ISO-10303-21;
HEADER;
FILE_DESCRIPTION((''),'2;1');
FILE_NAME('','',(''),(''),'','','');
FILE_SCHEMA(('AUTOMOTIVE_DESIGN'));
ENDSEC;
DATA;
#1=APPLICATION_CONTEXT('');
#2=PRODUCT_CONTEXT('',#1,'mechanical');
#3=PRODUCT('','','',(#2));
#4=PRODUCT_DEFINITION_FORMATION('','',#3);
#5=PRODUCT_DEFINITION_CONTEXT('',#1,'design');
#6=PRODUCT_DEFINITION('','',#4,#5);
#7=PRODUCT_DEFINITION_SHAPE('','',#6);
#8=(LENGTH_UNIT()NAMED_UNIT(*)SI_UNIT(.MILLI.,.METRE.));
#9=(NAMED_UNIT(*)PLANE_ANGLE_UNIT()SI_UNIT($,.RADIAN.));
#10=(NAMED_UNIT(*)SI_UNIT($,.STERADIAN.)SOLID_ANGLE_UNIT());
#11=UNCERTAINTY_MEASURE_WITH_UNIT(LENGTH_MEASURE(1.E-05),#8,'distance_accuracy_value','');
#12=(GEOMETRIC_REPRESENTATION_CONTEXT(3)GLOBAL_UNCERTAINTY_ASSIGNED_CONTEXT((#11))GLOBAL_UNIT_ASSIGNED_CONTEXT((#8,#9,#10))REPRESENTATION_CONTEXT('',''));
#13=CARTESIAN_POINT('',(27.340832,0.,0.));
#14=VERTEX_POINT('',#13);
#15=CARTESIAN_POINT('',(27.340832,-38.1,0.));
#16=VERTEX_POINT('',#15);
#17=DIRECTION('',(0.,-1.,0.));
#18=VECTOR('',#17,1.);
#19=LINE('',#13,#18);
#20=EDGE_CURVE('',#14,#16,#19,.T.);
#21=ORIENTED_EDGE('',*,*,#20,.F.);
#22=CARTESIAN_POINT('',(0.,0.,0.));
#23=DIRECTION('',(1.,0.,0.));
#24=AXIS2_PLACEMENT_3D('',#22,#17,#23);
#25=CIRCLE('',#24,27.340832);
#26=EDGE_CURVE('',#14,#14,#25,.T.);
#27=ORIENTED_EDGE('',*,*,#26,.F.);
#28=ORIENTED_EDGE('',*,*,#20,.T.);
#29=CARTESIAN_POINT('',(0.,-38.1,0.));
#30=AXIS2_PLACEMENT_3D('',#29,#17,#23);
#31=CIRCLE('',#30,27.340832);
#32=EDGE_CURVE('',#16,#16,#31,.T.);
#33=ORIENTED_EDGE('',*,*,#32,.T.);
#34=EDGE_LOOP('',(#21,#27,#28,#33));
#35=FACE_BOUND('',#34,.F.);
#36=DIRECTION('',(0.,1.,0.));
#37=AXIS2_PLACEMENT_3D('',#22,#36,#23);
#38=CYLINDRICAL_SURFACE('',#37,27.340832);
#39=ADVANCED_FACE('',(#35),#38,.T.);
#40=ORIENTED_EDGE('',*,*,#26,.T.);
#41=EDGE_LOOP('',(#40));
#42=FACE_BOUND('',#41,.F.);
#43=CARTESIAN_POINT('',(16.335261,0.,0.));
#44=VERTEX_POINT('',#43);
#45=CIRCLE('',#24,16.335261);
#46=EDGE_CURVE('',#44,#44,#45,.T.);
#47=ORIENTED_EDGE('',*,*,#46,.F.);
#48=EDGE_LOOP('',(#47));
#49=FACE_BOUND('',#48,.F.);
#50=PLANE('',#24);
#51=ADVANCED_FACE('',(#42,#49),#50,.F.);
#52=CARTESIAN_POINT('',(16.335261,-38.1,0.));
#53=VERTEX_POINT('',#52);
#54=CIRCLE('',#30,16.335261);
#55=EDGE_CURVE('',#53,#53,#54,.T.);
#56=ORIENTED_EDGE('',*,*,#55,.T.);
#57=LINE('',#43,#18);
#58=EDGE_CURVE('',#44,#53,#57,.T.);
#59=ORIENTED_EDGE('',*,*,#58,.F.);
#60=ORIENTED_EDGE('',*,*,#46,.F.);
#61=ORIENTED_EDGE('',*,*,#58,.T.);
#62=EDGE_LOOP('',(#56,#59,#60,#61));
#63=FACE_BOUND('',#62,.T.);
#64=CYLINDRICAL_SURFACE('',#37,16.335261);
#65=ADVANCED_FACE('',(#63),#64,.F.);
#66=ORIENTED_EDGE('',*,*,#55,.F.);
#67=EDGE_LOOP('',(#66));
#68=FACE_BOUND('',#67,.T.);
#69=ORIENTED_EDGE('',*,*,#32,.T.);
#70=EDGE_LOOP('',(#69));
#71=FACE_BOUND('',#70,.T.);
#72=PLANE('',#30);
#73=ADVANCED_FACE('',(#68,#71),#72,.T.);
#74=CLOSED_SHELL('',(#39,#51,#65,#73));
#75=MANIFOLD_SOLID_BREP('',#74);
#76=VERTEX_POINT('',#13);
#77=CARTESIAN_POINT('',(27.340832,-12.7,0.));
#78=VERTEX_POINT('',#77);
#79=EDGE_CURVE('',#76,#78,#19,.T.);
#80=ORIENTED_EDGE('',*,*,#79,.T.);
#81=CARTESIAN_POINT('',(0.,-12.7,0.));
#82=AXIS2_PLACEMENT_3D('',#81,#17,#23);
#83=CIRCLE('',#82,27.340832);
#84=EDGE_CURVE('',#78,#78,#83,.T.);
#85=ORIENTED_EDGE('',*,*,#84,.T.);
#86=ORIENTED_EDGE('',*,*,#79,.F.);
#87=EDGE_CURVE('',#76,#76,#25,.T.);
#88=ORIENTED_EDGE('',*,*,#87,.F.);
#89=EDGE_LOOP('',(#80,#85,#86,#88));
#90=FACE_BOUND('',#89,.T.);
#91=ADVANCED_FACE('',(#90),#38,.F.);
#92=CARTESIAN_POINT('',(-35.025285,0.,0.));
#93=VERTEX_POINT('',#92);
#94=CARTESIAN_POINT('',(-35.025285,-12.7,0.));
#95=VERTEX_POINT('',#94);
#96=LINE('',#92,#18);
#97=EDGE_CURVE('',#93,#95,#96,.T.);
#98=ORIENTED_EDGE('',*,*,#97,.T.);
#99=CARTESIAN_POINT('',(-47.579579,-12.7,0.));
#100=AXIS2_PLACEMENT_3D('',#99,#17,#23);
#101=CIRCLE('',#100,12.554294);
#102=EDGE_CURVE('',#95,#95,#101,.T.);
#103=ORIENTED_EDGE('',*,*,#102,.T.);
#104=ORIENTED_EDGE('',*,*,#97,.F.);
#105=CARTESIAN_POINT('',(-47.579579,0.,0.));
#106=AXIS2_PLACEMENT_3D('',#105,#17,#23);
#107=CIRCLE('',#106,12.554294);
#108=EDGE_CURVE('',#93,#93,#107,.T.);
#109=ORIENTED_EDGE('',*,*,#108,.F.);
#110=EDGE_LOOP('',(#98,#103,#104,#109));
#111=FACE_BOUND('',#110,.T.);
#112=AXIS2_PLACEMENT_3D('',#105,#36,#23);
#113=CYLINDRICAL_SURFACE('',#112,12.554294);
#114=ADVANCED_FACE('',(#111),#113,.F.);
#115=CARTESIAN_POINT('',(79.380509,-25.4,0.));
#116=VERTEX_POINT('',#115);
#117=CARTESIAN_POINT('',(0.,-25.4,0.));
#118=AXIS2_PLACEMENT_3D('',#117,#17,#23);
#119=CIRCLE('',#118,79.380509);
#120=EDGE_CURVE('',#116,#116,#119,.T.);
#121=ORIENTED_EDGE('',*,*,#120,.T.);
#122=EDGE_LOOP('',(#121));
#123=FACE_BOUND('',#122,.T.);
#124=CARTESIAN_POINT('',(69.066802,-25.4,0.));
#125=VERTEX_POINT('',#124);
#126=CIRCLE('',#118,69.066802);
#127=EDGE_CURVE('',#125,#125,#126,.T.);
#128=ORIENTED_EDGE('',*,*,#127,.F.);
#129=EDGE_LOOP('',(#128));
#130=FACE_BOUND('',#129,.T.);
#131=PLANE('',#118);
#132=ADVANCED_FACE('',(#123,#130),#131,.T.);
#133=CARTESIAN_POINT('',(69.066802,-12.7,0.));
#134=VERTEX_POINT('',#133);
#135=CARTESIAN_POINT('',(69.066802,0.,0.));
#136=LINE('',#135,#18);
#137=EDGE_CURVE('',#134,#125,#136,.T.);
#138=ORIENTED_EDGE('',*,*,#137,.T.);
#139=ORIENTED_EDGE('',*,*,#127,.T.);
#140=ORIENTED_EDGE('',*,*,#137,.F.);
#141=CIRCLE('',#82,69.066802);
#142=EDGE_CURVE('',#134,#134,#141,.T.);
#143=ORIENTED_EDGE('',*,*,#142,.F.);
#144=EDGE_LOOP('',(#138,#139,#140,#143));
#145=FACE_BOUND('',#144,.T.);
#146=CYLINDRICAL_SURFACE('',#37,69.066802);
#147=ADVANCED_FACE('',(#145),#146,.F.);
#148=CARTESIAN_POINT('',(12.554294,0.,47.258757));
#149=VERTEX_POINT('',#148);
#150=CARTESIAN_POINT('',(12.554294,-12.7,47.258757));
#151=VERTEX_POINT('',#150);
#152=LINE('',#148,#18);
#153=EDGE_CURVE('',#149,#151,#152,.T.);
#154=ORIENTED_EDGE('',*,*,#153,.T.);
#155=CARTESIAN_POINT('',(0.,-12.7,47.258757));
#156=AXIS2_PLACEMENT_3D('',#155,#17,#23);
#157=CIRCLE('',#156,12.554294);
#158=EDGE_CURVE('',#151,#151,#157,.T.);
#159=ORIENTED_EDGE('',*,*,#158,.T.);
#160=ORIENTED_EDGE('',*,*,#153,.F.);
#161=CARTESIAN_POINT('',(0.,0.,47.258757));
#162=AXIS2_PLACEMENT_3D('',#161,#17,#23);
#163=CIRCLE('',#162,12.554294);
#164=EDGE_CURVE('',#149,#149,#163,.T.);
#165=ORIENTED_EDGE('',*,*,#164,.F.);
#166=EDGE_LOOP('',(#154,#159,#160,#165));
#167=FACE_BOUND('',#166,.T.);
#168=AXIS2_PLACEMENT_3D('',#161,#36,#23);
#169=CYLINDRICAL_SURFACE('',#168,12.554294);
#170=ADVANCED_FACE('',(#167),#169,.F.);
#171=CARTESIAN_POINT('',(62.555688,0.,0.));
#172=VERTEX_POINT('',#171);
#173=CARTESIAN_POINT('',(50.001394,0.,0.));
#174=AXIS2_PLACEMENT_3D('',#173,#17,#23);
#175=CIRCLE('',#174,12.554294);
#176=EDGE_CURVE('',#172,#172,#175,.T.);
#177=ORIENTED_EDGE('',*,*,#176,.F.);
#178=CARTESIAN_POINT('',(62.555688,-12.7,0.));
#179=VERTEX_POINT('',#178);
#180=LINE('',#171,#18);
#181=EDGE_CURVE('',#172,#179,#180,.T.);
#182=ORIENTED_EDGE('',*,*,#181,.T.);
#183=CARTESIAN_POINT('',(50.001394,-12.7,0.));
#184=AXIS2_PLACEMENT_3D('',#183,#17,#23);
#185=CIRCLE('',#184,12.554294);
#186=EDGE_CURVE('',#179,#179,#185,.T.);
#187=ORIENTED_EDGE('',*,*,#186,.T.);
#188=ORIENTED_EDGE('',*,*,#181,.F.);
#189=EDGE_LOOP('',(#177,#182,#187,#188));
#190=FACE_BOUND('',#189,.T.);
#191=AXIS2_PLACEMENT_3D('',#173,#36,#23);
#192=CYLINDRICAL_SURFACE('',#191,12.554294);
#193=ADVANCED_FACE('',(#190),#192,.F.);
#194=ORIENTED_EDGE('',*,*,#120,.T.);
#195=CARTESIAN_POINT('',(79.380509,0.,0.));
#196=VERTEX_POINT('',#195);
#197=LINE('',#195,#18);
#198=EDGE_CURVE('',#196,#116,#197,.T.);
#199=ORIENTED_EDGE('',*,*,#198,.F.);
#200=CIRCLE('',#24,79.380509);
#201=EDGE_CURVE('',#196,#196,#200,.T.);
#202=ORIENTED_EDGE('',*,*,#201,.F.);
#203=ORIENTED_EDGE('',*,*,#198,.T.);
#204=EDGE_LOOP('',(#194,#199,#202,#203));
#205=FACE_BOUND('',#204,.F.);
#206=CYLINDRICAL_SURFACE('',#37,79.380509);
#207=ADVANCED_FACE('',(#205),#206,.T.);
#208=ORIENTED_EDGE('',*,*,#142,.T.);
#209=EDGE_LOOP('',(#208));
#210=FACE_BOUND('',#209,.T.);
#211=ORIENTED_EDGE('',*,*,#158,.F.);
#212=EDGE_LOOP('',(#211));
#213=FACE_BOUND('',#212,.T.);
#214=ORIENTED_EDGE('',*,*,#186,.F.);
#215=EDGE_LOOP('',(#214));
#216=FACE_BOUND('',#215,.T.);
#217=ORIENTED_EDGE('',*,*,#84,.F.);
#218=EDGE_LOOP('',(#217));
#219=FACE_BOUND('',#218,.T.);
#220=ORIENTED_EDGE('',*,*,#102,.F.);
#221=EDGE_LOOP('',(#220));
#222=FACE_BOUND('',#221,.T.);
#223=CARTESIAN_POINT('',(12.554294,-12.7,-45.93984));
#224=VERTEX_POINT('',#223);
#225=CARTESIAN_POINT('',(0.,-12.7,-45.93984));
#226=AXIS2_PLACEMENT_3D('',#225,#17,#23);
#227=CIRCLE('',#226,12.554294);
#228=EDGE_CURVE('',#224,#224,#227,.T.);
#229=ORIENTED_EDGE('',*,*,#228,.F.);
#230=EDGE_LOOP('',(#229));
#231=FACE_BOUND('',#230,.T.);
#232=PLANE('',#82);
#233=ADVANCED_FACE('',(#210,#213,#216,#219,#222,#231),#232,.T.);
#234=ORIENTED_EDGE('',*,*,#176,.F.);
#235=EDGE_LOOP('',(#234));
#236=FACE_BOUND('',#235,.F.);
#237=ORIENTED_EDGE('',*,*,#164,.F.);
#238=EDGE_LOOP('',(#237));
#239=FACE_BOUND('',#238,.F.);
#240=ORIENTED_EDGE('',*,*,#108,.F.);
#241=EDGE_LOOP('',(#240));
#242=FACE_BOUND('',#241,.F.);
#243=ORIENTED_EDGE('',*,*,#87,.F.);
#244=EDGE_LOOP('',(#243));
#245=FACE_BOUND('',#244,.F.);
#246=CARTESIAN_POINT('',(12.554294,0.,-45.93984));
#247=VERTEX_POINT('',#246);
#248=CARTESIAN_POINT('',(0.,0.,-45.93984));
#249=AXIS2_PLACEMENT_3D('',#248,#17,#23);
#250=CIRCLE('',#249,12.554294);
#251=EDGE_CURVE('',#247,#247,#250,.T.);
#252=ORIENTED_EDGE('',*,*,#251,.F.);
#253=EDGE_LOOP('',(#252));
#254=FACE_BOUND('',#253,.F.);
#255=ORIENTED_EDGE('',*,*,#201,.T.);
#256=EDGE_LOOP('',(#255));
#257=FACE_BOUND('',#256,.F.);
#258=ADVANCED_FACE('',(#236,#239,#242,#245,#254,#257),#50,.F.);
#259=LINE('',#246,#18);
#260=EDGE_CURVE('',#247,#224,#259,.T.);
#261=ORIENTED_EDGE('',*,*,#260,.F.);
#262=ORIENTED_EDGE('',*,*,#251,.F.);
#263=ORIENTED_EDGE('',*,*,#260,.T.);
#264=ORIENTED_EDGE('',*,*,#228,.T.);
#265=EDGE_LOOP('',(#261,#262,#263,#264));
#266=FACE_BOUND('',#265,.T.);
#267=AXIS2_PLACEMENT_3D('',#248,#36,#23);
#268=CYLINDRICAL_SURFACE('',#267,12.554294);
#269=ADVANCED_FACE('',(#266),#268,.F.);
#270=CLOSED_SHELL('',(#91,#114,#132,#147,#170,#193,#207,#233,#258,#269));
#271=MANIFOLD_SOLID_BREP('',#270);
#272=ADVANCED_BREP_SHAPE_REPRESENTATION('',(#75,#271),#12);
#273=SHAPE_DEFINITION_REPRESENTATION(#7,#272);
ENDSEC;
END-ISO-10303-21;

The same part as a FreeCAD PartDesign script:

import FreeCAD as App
import Part
import Sketcher

V = App.Vector
Q = App.Units.Quantity

doc = App.newDocument("Part")
body = doc.addObject("PartDesign::Body", "Body")

# Sketch on XZ plane
sketch1 = body.newObject("Sketcher::SketchObject", "Sketch")
sketch1.AttachmentSupport = (doc.getObject("XZ_Plane"), [""])
sketch1.MapMode = "FlatFace"
sketch1.addGeometry([
    Part.Circle(V(0, 0, 0), V(0, 0, 1), 27),
    Part.Circle(V(0, 0, 0), V(0, 0, 1), 16),
], False)
sketch1.addConstraint([
    Sketcher.Constraint("Coincident", 0, 3, -1, 1),
    Sketcher.Constraint("Coincident", 1, 3, -1, 1),
    Sketcher.Constraint("Diameter", 1, 32.670522),
    Sketcher.Constraint("Diameter", 0, 54.681664),
])
pad1 = body.newObject("PartDesign::Pad", "Pad")
pad1.Profile = sketch1
pad1.Length = Q("1.5 in")
body2 = doc.addObject("PartDesign::Body", "Body001")

# Sketch on XZ plane
sketch2 = body2.newObject("Sketcher::SketchObject", "Sketch001")
sketch2.AttachmentSupport = (doc.getObject("XZ_Plane001"), [""])
sketch2.MapMode = "FlatFace"
sketch2.addGeometry([
    Part.Circle(V(0, 0, 0), V(0, 0, 1), 69),  # 0
    Part.Circle(V(0, -46, 0), V(0, 0, 1), 13),  # 1
    Part.Circle(V(-48, 0, 0), V(0, 0, 1), 13),  # 2
    Part.Circle(V(0, 0, 0), V(0, 0, 1), 27),  # 3
    Part.Circle(V(50, 0, 0), V(0, 0, 1), 13),  # 4
    Part.Circle(V(0, 47, 0), V(0, 0, 1), 13),  # 5
], False)
sketch2.addConstraint([
    Sketcher.Constraint("Coincident", 0, 3, -1, 1),
    Sketcher.Constraint("Coincident", 3, 3, -1, 1),
    Sketcher.Constraint("Equal", 1, 2),
    Sketcher.Constraint("Equal", 2, 4),
    Sketcher.Constraint("Equal", 4, 5),
    Sketcher.Constraint("PointOnObject", 1, 3, -2),
    Sketcher.Constraint("PointOnObject", 2, 3, -1),
    Sketcher.Constraint("PointOnObject", 4, 3, -1),
    Sketcher.Constraint("PointOnObject", 5, 3, -2),
    Sketcher.Constraint("Diameter", 1, 25.108588),
    Sketcher.Constraint("Diameter", 0, 138.133604),
    Sketcher.Constraint("Diameter", 3, 54.681664),
    Sketcher.Constraint("DistanceY", 1, 3, -1, 1, 45.93984),
    Sketcher.Constraint("DistanceX", 2, 3, -1, 1, 47.579579),
    Sketcher.Constraint("DistanceX", -1, 1, 4, 3, 50.001394),
    Sketcher.Constraint("DistanceY", -1, 1, 5, 3, 47.258757),
])
pad2 = body2.newObject("PartDesign::Pad", "Pad001")
pad2.Profile = sketch2
pad2.Length = Q("0.5 in")

# Sketch on XZ plane
sketch3 = body2.newObject("Sketcher::SketchObject", "Sketch002")
sketch3.AttachmentSupport = (doc.getObject("XZ_Plane001"), [""])
sketch3.MapMode = "FlatFace"
sketch3.addGeometry([
    Part.Circle(V(0, 0, 0), V(0, 0, 1), 79),
    Part.Circle(V(0, 0, 0), V(0, 0, 1), 69),
], False)
sketch3.addConstraint([
    Sketcher.Constraint("Coincident", 0, 3, -1, 1),
    Sketcher.Constraint("Coincident", 1, 3, -1, 1),
    Sketcher.Constraint("Diameter", 0, 158.761018),
    Sketcher.Constraint("Diameter", 1, 138.133604),
])
pad3 = body2.newObject("PartDesign::Pad", "Pad002")
pad3.Profile = sketch3
pad3.Length = Q("1 in")

doc.recompute()
